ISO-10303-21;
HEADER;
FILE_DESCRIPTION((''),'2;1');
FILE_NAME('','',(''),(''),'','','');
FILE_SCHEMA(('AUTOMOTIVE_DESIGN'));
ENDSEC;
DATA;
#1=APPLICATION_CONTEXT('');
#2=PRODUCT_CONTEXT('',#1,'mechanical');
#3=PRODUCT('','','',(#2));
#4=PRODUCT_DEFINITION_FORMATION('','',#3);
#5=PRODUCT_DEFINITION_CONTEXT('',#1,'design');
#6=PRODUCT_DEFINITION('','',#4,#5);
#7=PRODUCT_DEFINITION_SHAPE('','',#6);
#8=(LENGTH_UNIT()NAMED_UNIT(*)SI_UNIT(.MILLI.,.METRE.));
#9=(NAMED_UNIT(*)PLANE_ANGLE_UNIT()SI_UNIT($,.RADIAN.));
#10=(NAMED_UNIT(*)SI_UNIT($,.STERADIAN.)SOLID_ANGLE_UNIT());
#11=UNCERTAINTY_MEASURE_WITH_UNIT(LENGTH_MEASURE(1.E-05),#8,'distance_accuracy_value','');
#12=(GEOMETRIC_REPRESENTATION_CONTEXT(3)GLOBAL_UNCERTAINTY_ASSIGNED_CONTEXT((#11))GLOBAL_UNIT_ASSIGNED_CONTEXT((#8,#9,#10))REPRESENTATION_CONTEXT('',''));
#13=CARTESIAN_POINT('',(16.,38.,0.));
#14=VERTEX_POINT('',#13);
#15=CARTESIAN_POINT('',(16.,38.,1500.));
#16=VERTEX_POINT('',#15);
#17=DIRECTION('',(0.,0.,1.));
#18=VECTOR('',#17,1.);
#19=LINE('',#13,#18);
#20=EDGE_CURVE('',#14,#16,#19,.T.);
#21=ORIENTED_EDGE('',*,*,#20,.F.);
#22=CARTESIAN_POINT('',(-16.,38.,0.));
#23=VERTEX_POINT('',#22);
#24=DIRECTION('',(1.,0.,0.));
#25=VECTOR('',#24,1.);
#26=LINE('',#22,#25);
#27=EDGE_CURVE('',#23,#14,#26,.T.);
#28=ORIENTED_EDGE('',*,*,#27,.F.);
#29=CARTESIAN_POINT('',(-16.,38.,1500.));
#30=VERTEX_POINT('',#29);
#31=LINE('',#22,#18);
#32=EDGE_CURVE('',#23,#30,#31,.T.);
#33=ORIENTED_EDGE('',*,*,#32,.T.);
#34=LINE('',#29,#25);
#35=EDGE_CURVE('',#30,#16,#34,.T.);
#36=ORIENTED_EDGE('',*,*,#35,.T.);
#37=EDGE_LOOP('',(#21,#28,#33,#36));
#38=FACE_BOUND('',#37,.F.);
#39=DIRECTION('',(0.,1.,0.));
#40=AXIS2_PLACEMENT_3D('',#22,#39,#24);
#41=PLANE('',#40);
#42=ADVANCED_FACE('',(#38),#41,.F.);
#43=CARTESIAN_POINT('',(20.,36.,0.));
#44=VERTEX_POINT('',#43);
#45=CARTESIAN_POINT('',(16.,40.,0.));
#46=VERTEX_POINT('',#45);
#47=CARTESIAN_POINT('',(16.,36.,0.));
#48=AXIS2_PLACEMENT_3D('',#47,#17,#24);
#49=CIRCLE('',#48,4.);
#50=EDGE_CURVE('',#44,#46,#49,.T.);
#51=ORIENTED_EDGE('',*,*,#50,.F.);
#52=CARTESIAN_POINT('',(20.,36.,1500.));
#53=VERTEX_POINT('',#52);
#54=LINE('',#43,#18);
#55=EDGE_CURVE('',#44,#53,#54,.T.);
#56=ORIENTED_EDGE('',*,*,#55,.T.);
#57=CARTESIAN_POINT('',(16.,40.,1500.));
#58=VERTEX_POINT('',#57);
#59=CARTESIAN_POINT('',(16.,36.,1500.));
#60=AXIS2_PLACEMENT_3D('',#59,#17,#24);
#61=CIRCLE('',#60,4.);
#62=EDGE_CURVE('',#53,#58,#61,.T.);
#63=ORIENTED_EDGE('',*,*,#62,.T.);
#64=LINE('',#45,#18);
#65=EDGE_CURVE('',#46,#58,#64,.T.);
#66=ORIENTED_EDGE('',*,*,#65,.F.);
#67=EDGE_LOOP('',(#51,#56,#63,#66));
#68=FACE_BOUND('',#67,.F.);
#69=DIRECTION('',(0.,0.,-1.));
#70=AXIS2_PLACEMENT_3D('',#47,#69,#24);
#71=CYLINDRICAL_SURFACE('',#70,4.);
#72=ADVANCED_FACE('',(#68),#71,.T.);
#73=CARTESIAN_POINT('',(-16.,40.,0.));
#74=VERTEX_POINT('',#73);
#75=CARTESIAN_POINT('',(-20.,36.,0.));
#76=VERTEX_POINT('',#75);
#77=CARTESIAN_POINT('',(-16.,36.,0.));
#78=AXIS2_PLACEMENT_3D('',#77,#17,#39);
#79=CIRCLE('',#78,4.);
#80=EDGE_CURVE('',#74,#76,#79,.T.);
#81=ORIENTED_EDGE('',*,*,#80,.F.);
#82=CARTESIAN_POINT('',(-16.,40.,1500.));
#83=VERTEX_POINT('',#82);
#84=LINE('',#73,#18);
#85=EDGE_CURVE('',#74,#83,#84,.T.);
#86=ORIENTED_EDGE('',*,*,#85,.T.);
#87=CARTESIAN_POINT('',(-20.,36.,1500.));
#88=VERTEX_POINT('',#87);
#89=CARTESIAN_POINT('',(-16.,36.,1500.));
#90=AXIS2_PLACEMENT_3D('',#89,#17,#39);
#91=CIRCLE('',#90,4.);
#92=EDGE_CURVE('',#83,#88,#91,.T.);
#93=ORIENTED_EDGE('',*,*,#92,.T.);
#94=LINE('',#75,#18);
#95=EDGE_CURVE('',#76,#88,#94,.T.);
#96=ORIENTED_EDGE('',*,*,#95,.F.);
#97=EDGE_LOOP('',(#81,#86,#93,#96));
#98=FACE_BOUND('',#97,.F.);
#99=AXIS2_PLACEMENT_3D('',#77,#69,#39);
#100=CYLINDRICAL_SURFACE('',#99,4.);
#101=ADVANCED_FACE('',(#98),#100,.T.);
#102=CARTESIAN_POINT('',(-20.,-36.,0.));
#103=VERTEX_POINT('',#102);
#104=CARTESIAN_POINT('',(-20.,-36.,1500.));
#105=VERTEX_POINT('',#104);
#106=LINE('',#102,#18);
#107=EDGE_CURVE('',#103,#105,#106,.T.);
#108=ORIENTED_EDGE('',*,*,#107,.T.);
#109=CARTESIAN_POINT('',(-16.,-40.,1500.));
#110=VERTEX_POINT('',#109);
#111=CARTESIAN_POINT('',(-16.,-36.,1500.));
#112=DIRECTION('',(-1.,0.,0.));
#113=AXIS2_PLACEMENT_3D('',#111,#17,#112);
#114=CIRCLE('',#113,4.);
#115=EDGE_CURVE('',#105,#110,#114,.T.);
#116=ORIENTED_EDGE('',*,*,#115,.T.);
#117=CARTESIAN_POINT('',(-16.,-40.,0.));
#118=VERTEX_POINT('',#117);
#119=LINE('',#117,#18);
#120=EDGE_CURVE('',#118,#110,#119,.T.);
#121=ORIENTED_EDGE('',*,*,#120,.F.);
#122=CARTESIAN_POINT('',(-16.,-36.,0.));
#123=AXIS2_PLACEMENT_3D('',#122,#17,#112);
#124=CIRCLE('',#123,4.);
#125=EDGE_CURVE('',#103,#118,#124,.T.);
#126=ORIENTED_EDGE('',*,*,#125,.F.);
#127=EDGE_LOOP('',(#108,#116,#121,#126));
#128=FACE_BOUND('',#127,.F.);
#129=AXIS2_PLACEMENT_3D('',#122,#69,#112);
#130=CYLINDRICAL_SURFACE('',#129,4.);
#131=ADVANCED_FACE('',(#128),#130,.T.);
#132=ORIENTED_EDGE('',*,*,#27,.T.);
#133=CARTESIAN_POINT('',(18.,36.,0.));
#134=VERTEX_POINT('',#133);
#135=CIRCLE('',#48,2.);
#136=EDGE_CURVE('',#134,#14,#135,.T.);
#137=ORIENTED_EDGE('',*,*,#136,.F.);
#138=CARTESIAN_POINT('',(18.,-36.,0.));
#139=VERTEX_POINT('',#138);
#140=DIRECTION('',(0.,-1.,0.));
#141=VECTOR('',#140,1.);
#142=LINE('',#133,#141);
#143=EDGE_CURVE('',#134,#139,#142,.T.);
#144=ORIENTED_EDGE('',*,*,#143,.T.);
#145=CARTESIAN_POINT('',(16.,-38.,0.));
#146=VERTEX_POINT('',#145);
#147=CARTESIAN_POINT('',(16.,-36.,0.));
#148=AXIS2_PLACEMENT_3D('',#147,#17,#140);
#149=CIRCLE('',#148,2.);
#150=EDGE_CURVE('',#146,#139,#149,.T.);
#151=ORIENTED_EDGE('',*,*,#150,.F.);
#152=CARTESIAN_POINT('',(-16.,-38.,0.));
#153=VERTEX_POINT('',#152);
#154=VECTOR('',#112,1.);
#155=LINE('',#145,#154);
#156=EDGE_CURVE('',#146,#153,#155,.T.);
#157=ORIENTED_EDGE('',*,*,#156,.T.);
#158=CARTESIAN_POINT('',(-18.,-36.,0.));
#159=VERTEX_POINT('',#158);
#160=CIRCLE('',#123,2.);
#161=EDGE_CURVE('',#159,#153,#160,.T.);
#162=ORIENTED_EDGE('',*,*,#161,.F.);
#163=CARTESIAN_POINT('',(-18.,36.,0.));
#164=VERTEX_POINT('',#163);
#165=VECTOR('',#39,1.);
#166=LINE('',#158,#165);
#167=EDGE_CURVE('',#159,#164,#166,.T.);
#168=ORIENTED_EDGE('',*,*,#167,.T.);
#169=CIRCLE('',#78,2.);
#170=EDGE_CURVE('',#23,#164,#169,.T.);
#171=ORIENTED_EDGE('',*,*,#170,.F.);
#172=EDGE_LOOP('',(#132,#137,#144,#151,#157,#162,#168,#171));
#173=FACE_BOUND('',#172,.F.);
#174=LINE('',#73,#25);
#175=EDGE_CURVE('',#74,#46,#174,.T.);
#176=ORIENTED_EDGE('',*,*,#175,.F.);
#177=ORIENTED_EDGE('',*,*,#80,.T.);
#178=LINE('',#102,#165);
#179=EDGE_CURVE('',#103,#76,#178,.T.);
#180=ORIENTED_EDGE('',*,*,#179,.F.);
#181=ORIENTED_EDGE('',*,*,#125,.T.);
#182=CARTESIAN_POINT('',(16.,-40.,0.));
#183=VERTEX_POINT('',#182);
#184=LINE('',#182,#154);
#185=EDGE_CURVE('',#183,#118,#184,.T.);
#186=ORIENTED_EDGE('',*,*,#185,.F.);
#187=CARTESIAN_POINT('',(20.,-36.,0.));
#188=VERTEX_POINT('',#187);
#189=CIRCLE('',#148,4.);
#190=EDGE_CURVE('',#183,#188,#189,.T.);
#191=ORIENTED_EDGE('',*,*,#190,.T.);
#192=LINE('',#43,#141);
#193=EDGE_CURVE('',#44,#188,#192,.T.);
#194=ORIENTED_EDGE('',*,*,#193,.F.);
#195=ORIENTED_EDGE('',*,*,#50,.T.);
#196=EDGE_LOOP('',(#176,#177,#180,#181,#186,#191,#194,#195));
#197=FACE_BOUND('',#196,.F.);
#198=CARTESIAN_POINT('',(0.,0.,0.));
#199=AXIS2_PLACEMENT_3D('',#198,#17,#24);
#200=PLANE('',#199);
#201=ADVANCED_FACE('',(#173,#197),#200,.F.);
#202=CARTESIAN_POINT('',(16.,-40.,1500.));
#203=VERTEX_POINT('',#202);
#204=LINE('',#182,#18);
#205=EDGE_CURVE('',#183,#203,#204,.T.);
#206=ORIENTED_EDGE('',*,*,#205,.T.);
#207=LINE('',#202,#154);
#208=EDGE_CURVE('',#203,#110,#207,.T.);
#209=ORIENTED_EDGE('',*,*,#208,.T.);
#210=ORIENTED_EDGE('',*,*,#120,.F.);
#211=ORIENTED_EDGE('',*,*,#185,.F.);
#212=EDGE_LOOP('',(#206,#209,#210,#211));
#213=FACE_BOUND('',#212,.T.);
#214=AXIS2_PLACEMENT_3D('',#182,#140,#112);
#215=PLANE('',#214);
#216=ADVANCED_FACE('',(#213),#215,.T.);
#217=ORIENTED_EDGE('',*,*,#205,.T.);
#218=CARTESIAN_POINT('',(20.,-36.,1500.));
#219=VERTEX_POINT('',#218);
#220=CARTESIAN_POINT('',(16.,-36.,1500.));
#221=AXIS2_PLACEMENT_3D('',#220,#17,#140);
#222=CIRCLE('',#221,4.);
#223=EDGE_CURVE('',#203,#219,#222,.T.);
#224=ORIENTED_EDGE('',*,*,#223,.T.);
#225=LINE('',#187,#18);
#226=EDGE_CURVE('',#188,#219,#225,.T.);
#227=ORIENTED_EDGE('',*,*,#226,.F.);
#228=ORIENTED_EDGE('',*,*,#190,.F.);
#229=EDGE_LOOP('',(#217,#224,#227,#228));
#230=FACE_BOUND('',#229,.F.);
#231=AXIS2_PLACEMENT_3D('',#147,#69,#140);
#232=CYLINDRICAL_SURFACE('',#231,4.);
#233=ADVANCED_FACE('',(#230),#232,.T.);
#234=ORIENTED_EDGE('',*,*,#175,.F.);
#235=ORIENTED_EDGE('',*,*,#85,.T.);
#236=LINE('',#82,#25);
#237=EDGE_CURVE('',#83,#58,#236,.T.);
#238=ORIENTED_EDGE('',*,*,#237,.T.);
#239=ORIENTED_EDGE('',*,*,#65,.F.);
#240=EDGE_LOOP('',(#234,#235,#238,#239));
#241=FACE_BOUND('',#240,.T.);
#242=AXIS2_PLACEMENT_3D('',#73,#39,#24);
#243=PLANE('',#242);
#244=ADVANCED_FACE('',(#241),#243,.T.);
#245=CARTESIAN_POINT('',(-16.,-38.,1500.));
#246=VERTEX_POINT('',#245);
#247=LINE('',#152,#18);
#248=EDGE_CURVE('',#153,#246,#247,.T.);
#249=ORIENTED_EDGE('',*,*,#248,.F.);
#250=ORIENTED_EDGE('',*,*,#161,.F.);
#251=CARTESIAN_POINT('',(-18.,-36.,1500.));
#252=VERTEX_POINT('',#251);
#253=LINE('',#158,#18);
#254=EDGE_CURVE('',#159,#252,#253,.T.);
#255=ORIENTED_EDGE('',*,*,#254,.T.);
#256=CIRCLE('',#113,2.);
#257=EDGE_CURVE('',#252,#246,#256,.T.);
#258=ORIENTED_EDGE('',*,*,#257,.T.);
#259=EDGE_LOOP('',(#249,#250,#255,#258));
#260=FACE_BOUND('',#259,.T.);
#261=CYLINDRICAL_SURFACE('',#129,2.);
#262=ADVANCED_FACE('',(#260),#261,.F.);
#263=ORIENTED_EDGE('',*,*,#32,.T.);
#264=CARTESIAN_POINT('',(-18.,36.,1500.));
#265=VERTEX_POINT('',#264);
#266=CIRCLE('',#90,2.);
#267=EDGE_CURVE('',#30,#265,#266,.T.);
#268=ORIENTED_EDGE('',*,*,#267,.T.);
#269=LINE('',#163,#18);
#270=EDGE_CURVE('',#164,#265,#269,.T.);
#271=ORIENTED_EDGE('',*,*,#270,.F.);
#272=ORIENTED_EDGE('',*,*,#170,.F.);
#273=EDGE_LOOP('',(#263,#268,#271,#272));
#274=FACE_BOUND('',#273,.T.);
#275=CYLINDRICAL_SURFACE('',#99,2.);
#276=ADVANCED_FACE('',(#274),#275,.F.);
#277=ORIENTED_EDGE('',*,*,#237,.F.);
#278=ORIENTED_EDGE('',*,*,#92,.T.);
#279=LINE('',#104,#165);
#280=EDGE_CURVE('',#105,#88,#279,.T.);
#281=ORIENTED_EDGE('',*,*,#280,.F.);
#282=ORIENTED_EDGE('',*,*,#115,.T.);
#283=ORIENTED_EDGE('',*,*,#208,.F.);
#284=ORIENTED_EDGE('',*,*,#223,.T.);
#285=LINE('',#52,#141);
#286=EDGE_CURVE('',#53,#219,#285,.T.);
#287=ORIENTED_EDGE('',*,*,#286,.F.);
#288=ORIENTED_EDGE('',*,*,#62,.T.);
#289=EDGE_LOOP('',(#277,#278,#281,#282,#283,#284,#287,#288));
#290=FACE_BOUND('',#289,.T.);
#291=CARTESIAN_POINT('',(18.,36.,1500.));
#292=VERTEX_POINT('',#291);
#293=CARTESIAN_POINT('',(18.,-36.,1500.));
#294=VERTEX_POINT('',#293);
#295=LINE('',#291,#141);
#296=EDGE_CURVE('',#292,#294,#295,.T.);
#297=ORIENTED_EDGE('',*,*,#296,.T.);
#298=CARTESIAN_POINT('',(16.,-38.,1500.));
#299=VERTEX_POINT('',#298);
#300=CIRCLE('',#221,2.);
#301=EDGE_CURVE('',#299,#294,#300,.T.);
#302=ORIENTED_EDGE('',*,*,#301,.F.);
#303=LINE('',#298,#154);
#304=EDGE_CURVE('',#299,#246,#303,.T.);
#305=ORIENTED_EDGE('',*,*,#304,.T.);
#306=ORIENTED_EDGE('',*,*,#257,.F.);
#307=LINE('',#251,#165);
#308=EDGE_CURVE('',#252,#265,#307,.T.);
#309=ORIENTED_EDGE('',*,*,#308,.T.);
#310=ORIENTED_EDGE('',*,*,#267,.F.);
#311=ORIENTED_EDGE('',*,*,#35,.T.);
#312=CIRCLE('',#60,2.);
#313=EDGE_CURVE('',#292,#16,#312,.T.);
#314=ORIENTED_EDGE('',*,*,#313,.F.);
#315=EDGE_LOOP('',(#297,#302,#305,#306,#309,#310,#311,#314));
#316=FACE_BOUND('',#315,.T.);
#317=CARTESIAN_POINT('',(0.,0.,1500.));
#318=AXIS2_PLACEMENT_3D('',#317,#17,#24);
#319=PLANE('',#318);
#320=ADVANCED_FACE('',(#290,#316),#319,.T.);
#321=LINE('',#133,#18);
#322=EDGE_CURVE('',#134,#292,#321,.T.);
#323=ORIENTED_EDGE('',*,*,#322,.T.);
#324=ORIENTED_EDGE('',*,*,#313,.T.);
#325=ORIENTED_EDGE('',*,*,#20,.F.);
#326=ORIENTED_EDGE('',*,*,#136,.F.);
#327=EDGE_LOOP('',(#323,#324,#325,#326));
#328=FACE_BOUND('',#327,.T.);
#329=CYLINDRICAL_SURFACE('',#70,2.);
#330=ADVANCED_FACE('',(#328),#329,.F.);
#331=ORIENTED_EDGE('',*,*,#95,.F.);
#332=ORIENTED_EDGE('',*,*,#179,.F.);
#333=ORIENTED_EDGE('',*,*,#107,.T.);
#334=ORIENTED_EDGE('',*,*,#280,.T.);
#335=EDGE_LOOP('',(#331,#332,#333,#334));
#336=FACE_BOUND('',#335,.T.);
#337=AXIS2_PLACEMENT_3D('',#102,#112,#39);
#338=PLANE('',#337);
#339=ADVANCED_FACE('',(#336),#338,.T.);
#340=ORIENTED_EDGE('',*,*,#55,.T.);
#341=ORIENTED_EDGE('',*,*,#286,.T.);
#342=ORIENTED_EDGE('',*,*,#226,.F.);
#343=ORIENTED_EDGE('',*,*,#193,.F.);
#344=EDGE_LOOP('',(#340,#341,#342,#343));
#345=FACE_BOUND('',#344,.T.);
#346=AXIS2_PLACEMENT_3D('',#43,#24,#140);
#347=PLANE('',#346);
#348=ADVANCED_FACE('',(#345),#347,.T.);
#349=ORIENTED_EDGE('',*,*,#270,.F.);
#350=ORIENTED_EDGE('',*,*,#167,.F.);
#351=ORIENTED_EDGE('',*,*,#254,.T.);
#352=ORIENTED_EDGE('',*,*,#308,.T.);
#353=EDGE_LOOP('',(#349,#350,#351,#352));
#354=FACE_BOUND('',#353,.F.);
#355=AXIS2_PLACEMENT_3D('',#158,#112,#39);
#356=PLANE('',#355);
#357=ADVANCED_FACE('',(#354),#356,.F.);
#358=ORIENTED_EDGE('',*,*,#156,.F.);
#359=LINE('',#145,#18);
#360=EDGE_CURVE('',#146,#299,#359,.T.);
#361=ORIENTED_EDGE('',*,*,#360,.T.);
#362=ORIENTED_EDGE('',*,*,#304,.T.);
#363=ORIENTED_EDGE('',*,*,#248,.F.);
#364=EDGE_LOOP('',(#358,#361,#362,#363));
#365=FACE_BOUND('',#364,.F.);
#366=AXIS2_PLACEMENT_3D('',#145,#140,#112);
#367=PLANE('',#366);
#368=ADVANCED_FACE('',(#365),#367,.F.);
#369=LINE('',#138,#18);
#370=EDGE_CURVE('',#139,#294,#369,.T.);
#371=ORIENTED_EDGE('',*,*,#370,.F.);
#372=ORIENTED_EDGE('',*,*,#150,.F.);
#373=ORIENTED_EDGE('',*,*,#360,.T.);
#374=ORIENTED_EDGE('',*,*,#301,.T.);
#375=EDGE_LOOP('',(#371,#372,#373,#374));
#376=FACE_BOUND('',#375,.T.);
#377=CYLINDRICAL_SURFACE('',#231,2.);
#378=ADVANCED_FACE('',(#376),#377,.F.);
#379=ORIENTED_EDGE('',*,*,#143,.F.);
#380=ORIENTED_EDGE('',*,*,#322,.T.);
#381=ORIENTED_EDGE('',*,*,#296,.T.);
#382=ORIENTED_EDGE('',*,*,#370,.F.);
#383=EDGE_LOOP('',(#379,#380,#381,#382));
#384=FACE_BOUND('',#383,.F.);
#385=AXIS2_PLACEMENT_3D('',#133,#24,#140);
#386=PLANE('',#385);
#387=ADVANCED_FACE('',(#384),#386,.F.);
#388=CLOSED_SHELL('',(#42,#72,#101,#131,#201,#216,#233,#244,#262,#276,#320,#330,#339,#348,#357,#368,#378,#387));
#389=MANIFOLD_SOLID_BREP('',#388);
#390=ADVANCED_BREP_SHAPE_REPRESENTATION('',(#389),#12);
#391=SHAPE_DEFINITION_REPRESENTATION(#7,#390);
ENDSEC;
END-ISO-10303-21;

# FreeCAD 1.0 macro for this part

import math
import FreeCAD as App
import Part
import Sketcher
from FreeCAD import Vector
Q = App.Units.Quantity

doc = App.newDocument("Part")
params = doc.addObject("Spreadsheet::Sheet", "Params")
for row, (alias, value) in enumerate([
    ("sketch1_radius", "4 mm"),
    ("sketch1_radius2", "2 mm"),
    ("pad1_length", "1500 mm"),
], start=1):
    params.set(f"A{row}", alias)
    params.set(f"B{row}", "=" + value)
    params.setAlias(f"B{row}", alias)

body = doc.addObject("PartDesign::Body", "Body")

sketch1 = doc.addObject("Sketcher::SketchObject", "Sketch")
body.addObject(sketch1)
sketch1.AttachmentSupport = (doc.XY_Plane, [""])
sketch1.MapMode = "FlatFace"
sketch1.addGeometry([
    Part.LineSegment(Vector(-20, 36, 0), Vector(-20, -36, 0)),
    Part.ArcOfCircle(Part.Circle(Vector(-16, -36, 0), Vector(0, 0, 1), 4), math.radians(180), math.radians(270)),
    Part.LineSegment(Vector(-16, -40, 0), Vector(16, -40, 0)),
    Part.ArcOfCircle(Part.Circle(Vector(16, -36, 0), Vector(0, 0, 1), 4), math.radians(-90), math.radians(0)),
    Part.LineSegment(Vector(20, -36, 0), Vector(20, 36, 0)),
    Part.ArcOfCircle(Part.Circle(Vector(16, 36, 0), Vector(0, 0, 1), 4), math.radians(0), math.radians(90)),
    Part.LineSegment(Vector(16, 40, 0), Vector(-16, 40, 0)),
    Part.ArcOfCircle(Part.Circle(Vector(-16, 36, 0), Vector(0, 0, 1), 4), math.radians(90), math.radians(180)),
    Part.ArcOfCircle(Part.Circle(Vector(-16, 36, 0), Vector(0, 0, 1), 2), math.radians(90), math.radians(180)),
    Part.LineSegment(Vector(-16, 38, 0), Vector(16, 38, 0)),
    Part.ArcOfCircle(Part.Circle(Vector(16, 36, 0), Vector(0, 0, 1), 2), math.radians(0), math.radians(90)),
    Part.LineSegment(Vector(18, 36, 0), Vector(18, -36, 0)),
    Part.ArcOfCircle(Part.Circle(Vector(16, -36, 0), Vector(0, 0, 1), 2), math.radians(-90), math.radians(0)),
    Part.LineSegment(Vector(16, -38, 0), Vector(-16, -38, 0)),
    Part.ArcOfCircle(Part.Circle(Vector(-16, -36, 0), Vector(0, 0, 1), 2), math.radians(180), math.radians(270)),
    Part.LineSegment(Vector(-18, -36, 0), Vector(-18, 36, 0)),
], False)
sketch1.addConstraint([
    Sketcher.Constraint("Tangent", 0, 2, 1, 1),
    Sketcher.Constraint("Tangent", 1, 2, 2, 1),
    Sketcher.Constraint("Tangent", 2, 2, 3, 1),
    Sketcher.Constraint("Tangent", 3, 2, 4, 1),
    Sketcher.Constraint("Tangent", 4, 2, 5, 1),
    Sketcher.Constraint("Tangent", 5, 2, 6, 1),
    Sketcher.Constraint("Tangent", 6, 2, 7, 1),
    Sketcher.Constraint("Tangent", 7, 2, 0, 1),
    Sketcher.Constraint("Tangent", 8, 1, 9, 1),
    Sketcher.Constraint("Tangent", 9, 2, 10, 2),
    Sketcher.Constraint("Tangent", 10, 1, 11, 1),
    Sketcher.Constraint("Tangent", 11, 2, 12, 2),
    Sketcher.Constraint("Tangent", 12, 1, 13, 1),
    Sketcher.Constraint("Tangent", 13, 2, 14, 2),
    Sketcher.Constraint("Tangent", 14, 1, 15, 1),
    Sketcher.Constraint("Tangent", 15, 2, 8, 2),
    Sketcher.Constraint("Vertical", 0),
    Sketcher.Constraint("Horizontal", 2),
    Sketcher.Constraint("Vertical", 4),
    Sketcher.Constraint("Horizontal", 6),
    Sketcher.Constraint("Horizontal", 9),
    Sketcher.Constraint("Vertical", 11),
    Sketcher.Constraint("Horizontal", 13),
    Sketcher.Constraint("Vertical", 15),
    Sketcher.Constraint("Coincident", 8, 3, 7, 3),
    Sketcher.Constraint("Coincident", 10, 3, 5, 3),
    Sketcher.Constraint("Coincident", 12, 3, 3, 3),
    Sketcher.Constraint("Equal", 1, 3),
    Sketcher.Constraint("Equal", 3, 5),
    Sketcher.Constraint("Equal", 5, 7),
    Sketcher.Constraint("Equal", 12, 14),
    Sketcher.Constraint("Symmetric", 1, 3, 5, 3, -1, 1),
    Sketcher.Constraint("Radius", 1, Q("4 mm")),
    Sketcher.Constraint("Radius", 8, Q("2 mm")),
    Sketcher.Constraint("DistanceX", 0, 2, -1, 1, Q("20 mm")),
    Sketcher.Constraint("DistanceY", 1, 2, -1, 1, Q("40 mm")),
])
sketch1.setExpression("Constraints[32]", "Params.sketch1_radius")
sketch1.setExpression("Constraints[33]", "Params.sketch1_radius2")
pad1 = doc.addObject("PartDesign::Pad", "Pad")
body.addObject(pad1)
pad1.Profile = sketch1
pad1.setExpression("Length", "Params.pad1_length")

doc.recompute()
